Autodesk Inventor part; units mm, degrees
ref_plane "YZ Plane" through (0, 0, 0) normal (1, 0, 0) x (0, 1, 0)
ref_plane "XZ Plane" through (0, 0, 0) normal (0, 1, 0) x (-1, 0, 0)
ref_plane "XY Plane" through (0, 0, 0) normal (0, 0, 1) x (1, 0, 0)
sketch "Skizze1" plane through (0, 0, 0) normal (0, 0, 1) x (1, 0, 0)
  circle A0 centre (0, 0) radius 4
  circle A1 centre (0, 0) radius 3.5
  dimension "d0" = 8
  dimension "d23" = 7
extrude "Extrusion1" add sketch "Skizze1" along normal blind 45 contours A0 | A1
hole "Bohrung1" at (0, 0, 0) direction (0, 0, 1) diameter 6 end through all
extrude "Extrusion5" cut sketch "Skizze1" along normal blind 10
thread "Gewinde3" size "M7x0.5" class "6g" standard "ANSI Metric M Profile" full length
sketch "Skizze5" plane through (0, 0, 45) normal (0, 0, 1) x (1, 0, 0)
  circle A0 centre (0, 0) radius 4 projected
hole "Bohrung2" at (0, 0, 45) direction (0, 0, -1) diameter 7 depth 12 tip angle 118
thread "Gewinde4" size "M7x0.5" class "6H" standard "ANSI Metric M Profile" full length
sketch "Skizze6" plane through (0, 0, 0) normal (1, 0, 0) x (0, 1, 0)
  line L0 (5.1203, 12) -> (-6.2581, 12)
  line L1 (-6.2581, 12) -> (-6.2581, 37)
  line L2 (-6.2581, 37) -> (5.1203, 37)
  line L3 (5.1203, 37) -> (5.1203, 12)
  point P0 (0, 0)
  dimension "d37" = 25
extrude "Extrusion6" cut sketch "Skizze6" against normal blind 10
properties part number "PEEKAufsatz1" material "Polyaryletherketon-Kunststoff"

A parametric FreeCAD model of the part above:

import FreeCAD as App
import Part
import Sketcher
Q = App.Units.Quantity


def add_polygon(sketch, points):
    """Adds a closed chain of lines whose ends are joined by coincident constraints."""
    first, n = sketch.GeometryCount, len(points)
    for a, b in zip(points, points[1:] + points[:1]):
        sketch.addGeometry(Part.LineSegment(App.Vector(*a, 0), App.Vector(*b, 0)), False)
    for i in range(n):
        sketch.addConstraint(Sketcher.Constraint("Coincident", first + i, 2, first + (i + 1) % n, 1))

doc = App.newDocument("Part")
params = doc.addObject("Spreadsheet::Sheet", "Params")
for row, (alias, value) in enumerate([
    ("sketch1_diameter", "8 mm"),
    ("pad1_length", "45 mm"),
    ("sketch2_diameter", "6 mm"),
    ("hole_diameter", "6 mm"),
    ("sketch3_diameter", "8 mm"),
    ("sketch3_diameter2", "7 mm"),
    ("pocket1_length", "10 mm"),
    ("sketch4_diameter", "7 mm"),
    ("hole2_diameter", "7 mm"),
    ("hole2_depth", "12 mm"),
    ("sketch5_height", "25 mm"),
    ("pocket2_length", "10 mm"),
], start=1):
    params.set(f"A{row}", alias)
    params.set(f"B{row}", "=" + value)
    params.setAlias(f"B{row}", alias)

body = doc.addObject("PartDesign::Body", "Body")

sketch1 = body.newObject("Sketcher::SketchObject", "Sketch")
sketch1.AttachmentSupport = (doc.getObject("XY_Plane"), [""])
sketch1.MapMode = "FlatFace"
sketch1.addGeometry(Part.Circle(App.Vector(0, 0, 0), App.Vector(0, 0, 1), 4), False)
sketch1.addConstraint([
    Sketcher.Constraint("Coincident", 0, 3, -1, 1),
    Sketcher.Constraint("Diameter", 0, Q("8 mm")),
])
sketch1.setExpression("Constraints[1]", "Params.sketch1_diameter")
pad1 = body.newObject("PartDesign::Pad", "Pad")
pad1.Profile = sketch1
pad1.setExpression("Length", "Params.pad1_length")

sketch2 = body.newObject("Sketcher::SketchObject", "Sketch001")
sketch2.AttachmentSupport = (doc.getObject("XY_Plane"), [""])
sketch2.MapMode = "FlatFace"
sketch2.addGeometry(Part.Circle(App.Vector(0, 0, 0), App.Vector(0, 0, 1), 3), False)
sketch2.addConstraint([
    Sketcher.Constraint("Coincident", 0, 3, -1, 1),
    Sketcher.Constraint("Diameter", 0, Q("6 mm")),
])
sketch2.setExpression("Constraints[1]", "Params.sketch2_diameter")
doc.recompute()
hole = body.newObject("PartDesign::Hole", "Hole")
hole.Profile = sketch2
hole.ThreadType = "None"
hole.setExpression("Diameter", "Params.hole_diameter")
hole.DepthType = "ThroughAll"
hole.Reversed = True

sketch3 = body.newObject("Sketcher::SketchObject", "Sketch002")
sketch3.AttachmentSupport = (doc.getObject("XY_Plane"), [""])
sketch3.MapMode = "FlatFace"
sketch3.addGeometry([
    Part.Circle(App.Vector(0, 0, 0), App.Vector(0, 0, 1), 4),
    Part.Circle(App.Vector(0, 0, 0), App.Vector(0, 0, 1), 3.5),
], False)
sketch3.addConstraint([
    Sketcher.Constraint("Coincident", 0, 3, -1, 1),
    Sketcher.Constraint("Coincident", 1, 3, -1, 1),
    Sketcher.Constraint("Diameter", 0, Q("8 mm")),
    Sketcher.Constraint("Diameter", 1, Q("7 mm")),
])
sketch3.setExpression("Constraints[2]", "Params.sketch3_diameter")
sketch3.setExpression("Constraints[3]", "Params.sketch3_diameter2")
pocket1 = body.newObject("PartDesign::Pocket", "Pocket")
pocket1.Profile = sketch3
pocket1.setExpression("Length", "Params.pocket1_length")
pocket1.Reversed = True

sketch4 = body.newObject("Sketcher::SketchObject", "Sketch003")
sketch4.AttachmentSupport = (doc.getObject("XY_Plane"), [""])
sketch4.MapMode = "FlatFace"
sketch4.AttachmentOffset = App.Placement(App.Vector(0, 0, 45), App.Rotation())
sketch4.addGeometry(Part.Circle(App.Vector(0, 0, 0), App.Vector(0, 0, 1), 3.5), False)
sketch4.addConstraint([
    Sketcher.Constraint("Coincident", 0, 3, -1, 1),
    Sketcher.Constraint("Diameter", 0, Q("7 mm")),
])
sketch4.setExpression("Constraints[1]", "Params.sketch4_diameter")
doc.recompute()
hole2 = body.newObject("PartDesign::Hole", "Hole001")
hole2.Profile = sketch4
hole2.ThreadType = "None"
hole2.setExpression("Diameter", "Params.hole2_diameter")
hole2.DepthType = "Dimension"
hole2.setExpression("Depth", "Params.hole2_depth")
hole2.DrillPoint = "Angled"
hole2.DrillPointAngle = 118

sketch5 = body.newObject("Sketcher::SketchObject", "Sketch004")
sketch5.AttachmentSupport = (doc.getObject("YZ_Plane"), [""])
sketch5.MapMode = "FlatFace"
add_polygon(sketch5, [(-6, 12), (5, 12), (5, 37), (-6, 37)])
sketch5.addConstraint([
    Sketcher.Constraint("Horizontal", 0),
    Sketcher.Constraint("Vertical", 1),
    Sketcher.Constraint("Horizontal", 2),
    Sketcher.Constraint("Vertical", 3),
    Sketcher.Constraint("DistanceY", 1, 1, 1, 2, Q("25 mm")),
    Sketcher.Constraint("DistanceY", -1, 1, 0, 2, Q("12 mm")),
    Sketcher.Constraint("DistanceX", 0, 1, 0, 2, Q("11.3784 mm")),
    Sketcher.Constraint("DistanceX", 2, 2, -1, 1, Q("6.258 mm")),
])
sketch5.setExpression("Constraints[8]", "Params.sketch5_height")
pocket2 = body.newObject("PartDesign::Pocket", "Pocket001")
pocket2.Profile = sketch5
pocket2.setExpression("Length", "Params.pocket2_length")

doc.recompute()
